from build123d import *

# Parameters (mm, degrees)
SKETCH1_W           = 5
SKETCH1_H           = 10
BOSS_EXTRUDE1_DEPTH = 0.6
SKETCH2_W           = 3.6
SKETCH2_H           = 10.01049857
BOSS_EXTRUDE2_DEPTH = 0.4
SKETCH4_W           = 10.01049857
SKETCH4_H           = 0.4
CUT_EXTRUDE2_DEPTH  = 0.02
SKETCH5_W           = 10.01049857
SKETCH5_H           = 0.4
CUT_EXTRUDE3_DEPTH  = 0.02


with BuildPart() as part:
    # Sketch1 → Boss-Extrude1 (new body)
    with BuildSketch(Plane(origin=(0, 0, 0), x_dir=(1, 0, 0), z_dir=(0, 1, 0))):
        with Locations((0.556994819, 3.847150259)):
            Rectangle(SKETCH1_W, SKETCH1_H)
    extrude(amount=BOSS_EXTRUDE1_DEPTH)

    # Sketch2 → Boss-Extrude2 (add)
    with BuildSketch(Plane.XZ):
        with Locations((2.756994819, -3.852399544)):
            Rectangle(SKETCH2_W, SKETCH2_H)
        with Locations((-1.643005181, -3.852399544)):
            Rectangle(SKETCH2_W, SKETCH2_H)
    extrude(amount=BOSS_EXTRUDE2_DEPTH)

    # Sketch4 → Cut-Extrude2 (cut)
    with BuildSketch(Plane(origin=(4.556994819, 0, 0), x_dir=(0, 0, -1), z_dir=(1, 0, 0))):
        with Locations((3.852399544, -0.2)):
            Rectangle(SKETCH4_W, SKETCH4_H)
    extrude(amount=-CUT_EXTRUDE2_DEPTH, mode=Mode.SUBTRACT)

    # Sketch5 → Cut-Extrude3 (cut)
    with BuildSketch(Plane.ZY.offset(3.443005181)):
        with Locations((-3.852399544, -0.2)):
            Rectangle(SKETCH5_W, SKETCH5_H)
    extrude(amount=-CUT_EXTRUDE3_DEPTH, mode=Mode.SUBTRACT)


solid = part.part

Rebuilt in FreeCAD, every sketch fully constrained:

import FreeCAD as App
import Part
import Sketcher

doc = App.newDocument("Part")
body = doc.addObject("PartDesign::Body", "Body")

sketch1 = body.newObject("Sketcher::SketchObject", "Sketch")
sketch1.AttachmentSupport = (doc.getObject("XZ_Plane"), [""])
sketch1.MapMode = "FlatFace"
sketch1.addGeometry([
    Part.LineSegment(App.Vector(-1.943005, -8.84715, 0), App.Vector(-1.943005, 1.15285, 0)),
    Part.LineSegment(App.Vector(-1.943005, 1.15285, 0), App.Vector(3.056995, 1.15285, 0)),
    Part.LineSegment(App.Vector(3.056995, 1.15285, 0), App.Vector(3.056995, -8.84715, 0)),
    Part.LineSegment(App.Vector(3.056995, -8.84715, 0), App.Vector(-1.943005, -8.84715, 0)),
], False)
sketch1.addConstraint([
    Sketcher.Constraint("Coincident", 0, 2, 1, 1),
    Sketcher.Constraint("Coincident", 1, 2, 2, 1),
    Sketcher.Constraint("Coincident", 2, 2, 3, 1),
    Sketcher.Constraint("Coincident", 3, 2, 0, 1),
    Sketcher.Constraint("Vertical", 0),
    Sketcher.Constraint("Horizontal", 1),
    Sketcher.Constraint("Vertical", 2),
    Sketcher.Constraint("Horizontal", 3),
    Sketcher.Constraint("DistanceX", 1, 1, 1, 2, 5.0),
    Sketcher.Constraint("DistanceY", 0, 1, 0, 2, 10.0),
    Sketcher.Constraint("DistanceY", -1, 1, 0, 2, 1.15285),
    Sketcher.Constraint("DistanceX", 0, 2, -1, 1, 1.943005),
])
pad1 = body.newObject("PartDesign::Pad", "Pad")
pad1.Profile = sketch1
pad1.Length = 0.6
pad1.Reversed = True

sketch2 = body.newObject("Sketcher::SketchObject", "Sketch001")
sketch2.AttachmentSupport = (doc.getObject("XZ_Plane"), [""])
sketch2.MapMode = "FlatFace"
sketch2.addGeometry([
    Part.LineSegment(App.Vector(0.956995, 1.15285, 0), App.Vector(0.956995, -8.857649, 0)),
    Part.LineSegment(App.Vector(0.956995, -8.857649, 0), App.Vector(4.556995, -8.857649, 0)),
    Part.LineSegment(App.Vector(4.556995, -8.857649, 0), App.Vector(4.556995, 1.15285, 0)),
    Part.LineSegment(App.Vector(4.556995, 1.15285, 0), App.Vector(0.956995, 1.15285, 0)),
    Part.LineSegment(App.Vector(-3.443005, 1.15285, 0), App.Vector(-3.443005, -8.857649, 0)),
    Part.LineSegment(App.Vector(-3.443005, -8.857649, 0), App.Vector(0.156995, -8.857649, 0)),
    Part.LineSegment(App.Vector(0.156995, -8.857649, 0), App.Vector(0.156995, 1.15285, 0)),
    Part.LineSegment(App.Vector(0.156995, 1.15285, 0), App.Vector(-3.443005, 1.15285, 0)),
], False)
sketch2.addConstraint([
    Sketcher.Constraint("Coincident", 0, 2, 1, 1),
    Sketcher.Constraint("Coincident", 1, 2, 2, 1),
    Sketcher.Constraint("Coincident", 2, 2, 3, 1),
    Sketcher.Constraint("Coincident", 3, 2, 0, 1),
    Sketcher.Constraint("Coincident", 4, 2, 5, 1),
    Sketcher.Constraint("Coincident", 5, 2, 6, 1),
    Sketcher.Constraint("Coincident", 6, 2, 7, 1),
    Sketcher.Constraint("Coincident", 7, 2, 4, 1),
    Sketcher.Constraint("Vertical", 0),
    Sketcher.Constraint("Horizontal", 1),
    Sketcher.Constraint("Vertical", 2),
    Sketcher.Constraint("Horizontal", 3),
    Sketcher.Constraint("Vertical", 4),
    Sketcher.Constraint("Horizontal", 5),
    Sketcher.Constraint("Vertical", 6),
    Sketcher.Constraint("Horizontal", 7),
    Sketcher.Constraint("Horizontal", 1, 2, 4, 2),
    Sketcher.Constraint("Horizontal", 3, 2, 6, 2),
    Sketcher.Constraint("Equal", 3, 5),
    Sketcher.Constraint("DistanceX", 1, 1, 1, 2, 3.6),
    Sketcher.Constraint("DistanceX", 4, 2, 1, 2, 8.0),
    Sketcher.Constraint("DistanceY", 0, 2, 0, 1, 10.010499),
    Sketcher.Constraint("DistanceY", 0, 2, -1, 1, 8.857649),
    Sketcher.Constraint("DistanceX", -1, 1, 0, 2, 0.956995),
])
pad2 = body.newObject("PartDesign::Pad", "Pad001")
pad2.Profile = sketch2
pad2.Length = 0.4

sketch3 = body.newObject("Sketcher::SketchObject", "Sketch002")
sketch3.AttachmentSupport = (doc.getObject("YZ_Plane"), [""])
sketch3.MapMode = "FlatFace"
sketch3.AttachmentOffset = App.Placement(App.Vector(0, 0, 4.556995), App.Rotation())
sketch3.addGeometry([
    Part.LineSegment(App.Vector(0, 1.15285, 0), App.Vector(-0.4, 1.15285, 0)),
    Part.LineSegment(App.Vector(-0.4, 1.15285, 0), App.Vector(-0.4, -8.857649, 0)),
    Part.LineSegment(App.Vector(-0.4, -8.857649, 0), App.Vector(0, -8.857649, 0)),
    Part.LineSegment(App.Vector(0, -8.857649, 0), App.Vector(0, 1.15285, 0)),
], False)
sketch3.addConstraint([
    Sketcher.Constraint("Coincident", 0, 2, 1, 1),
    Sketcher.Constraint("Coincident", 1, 2, 2, 1),
    Sketcher.Constraint("Coincident", 2, 2, 3, 1),
    Sketcher.Constraint("Coincident", 3, 2, 0, 1),
    Sketcher.Constraint("Horizontal", 0),
    Sketcher.Constraint("Vertical", 1),
    Sketcher.Constraint("Horizontal", 2),
    Sketcher.Constraint("Vertical", 3),
    Sketcher.Constraint("PointOnObject", 2, 2, -2),
    Sketcher.Constraint("DistanceX", 0, 2, 0, 1, 0.4),
    Sketcher.Constraint("DistanceY", 1, 2, 1, 1, 10.010499),
    Sketcher.Constraint("DistanceY", -1, 1, 0, 2, 1.15285),
])
pocket1 = body.newObject("PartDesign::Pocket", "Pocket")
pocket1.Profile = sketch3
pocket1.Length = 0.02

sketch4 = body.newObject("Sketcher::SketchObject", "Sketch003")
sketch4.AttachmentSupport = (doc.getObject("YZ_Plane"), [""])
sketch4.MapMode = "FlatFace"
sketch4.AttachmentOffset = App.Placement(App.Vector(0, 0, -3.443005), App.Rotation())
sketch4.addGeometry([
    Part.LineSegment(App.Vector(0, -8.857649, 0), App.Vector(-0.4, -8.857649, 0)),
    Part.LineSegment(App.Vector(-0.4, -8.857649, 0), App.Vector(-0.4, 1.15285, 0)),
    Part.LineSegment(App.Vector(-0.4, 1.15285, 0), App.Vector(0, 1.15285, 0)),
    Part.LineSegment(App.Vector(0, 1.15285, 0), App.Vector(0, -8.857649, 0)),
], False)
sketch4.addConstraint([
    Sketcher.Constraint("Coincident", 0, 2, 1, 1),
    Sketcher.Constraint("Coincident", 1, 2, 2, 1),
    Sketcher.Constraint("Coincident", 2, 2, 3, 1),
    Sketcher.Constraint("Coincident", 3, 2, 0, 1),
    Sketcher.Constraint("Horizontal", 0),
    Sketcher.Constraint("Vertical", 1),
    Sketcher.Constraint("Horizontal", 2),
    Sketcher.Constraint("Vertical", 3),
    Sketcher.Constraint("PointOnObject", 2, 2, -2),
    Sketcher.Constraint("DistanceX", 0, 2, 0, 1, 0.4),
    Sketcher.Constraint("DistanceY", 1, 1, 1, 2, 10.010499),
    Sketcher.Constraint("DistanceY", 0, 2, -1, 1, 8.857649),
])
pocket2 = body.newObject("PartDesign::Pocket", "Pocket001")
pocket2.Profile = sketch4
pocket2.Length = 0.02
pocket2.Reversed = True

doc.recompute()
